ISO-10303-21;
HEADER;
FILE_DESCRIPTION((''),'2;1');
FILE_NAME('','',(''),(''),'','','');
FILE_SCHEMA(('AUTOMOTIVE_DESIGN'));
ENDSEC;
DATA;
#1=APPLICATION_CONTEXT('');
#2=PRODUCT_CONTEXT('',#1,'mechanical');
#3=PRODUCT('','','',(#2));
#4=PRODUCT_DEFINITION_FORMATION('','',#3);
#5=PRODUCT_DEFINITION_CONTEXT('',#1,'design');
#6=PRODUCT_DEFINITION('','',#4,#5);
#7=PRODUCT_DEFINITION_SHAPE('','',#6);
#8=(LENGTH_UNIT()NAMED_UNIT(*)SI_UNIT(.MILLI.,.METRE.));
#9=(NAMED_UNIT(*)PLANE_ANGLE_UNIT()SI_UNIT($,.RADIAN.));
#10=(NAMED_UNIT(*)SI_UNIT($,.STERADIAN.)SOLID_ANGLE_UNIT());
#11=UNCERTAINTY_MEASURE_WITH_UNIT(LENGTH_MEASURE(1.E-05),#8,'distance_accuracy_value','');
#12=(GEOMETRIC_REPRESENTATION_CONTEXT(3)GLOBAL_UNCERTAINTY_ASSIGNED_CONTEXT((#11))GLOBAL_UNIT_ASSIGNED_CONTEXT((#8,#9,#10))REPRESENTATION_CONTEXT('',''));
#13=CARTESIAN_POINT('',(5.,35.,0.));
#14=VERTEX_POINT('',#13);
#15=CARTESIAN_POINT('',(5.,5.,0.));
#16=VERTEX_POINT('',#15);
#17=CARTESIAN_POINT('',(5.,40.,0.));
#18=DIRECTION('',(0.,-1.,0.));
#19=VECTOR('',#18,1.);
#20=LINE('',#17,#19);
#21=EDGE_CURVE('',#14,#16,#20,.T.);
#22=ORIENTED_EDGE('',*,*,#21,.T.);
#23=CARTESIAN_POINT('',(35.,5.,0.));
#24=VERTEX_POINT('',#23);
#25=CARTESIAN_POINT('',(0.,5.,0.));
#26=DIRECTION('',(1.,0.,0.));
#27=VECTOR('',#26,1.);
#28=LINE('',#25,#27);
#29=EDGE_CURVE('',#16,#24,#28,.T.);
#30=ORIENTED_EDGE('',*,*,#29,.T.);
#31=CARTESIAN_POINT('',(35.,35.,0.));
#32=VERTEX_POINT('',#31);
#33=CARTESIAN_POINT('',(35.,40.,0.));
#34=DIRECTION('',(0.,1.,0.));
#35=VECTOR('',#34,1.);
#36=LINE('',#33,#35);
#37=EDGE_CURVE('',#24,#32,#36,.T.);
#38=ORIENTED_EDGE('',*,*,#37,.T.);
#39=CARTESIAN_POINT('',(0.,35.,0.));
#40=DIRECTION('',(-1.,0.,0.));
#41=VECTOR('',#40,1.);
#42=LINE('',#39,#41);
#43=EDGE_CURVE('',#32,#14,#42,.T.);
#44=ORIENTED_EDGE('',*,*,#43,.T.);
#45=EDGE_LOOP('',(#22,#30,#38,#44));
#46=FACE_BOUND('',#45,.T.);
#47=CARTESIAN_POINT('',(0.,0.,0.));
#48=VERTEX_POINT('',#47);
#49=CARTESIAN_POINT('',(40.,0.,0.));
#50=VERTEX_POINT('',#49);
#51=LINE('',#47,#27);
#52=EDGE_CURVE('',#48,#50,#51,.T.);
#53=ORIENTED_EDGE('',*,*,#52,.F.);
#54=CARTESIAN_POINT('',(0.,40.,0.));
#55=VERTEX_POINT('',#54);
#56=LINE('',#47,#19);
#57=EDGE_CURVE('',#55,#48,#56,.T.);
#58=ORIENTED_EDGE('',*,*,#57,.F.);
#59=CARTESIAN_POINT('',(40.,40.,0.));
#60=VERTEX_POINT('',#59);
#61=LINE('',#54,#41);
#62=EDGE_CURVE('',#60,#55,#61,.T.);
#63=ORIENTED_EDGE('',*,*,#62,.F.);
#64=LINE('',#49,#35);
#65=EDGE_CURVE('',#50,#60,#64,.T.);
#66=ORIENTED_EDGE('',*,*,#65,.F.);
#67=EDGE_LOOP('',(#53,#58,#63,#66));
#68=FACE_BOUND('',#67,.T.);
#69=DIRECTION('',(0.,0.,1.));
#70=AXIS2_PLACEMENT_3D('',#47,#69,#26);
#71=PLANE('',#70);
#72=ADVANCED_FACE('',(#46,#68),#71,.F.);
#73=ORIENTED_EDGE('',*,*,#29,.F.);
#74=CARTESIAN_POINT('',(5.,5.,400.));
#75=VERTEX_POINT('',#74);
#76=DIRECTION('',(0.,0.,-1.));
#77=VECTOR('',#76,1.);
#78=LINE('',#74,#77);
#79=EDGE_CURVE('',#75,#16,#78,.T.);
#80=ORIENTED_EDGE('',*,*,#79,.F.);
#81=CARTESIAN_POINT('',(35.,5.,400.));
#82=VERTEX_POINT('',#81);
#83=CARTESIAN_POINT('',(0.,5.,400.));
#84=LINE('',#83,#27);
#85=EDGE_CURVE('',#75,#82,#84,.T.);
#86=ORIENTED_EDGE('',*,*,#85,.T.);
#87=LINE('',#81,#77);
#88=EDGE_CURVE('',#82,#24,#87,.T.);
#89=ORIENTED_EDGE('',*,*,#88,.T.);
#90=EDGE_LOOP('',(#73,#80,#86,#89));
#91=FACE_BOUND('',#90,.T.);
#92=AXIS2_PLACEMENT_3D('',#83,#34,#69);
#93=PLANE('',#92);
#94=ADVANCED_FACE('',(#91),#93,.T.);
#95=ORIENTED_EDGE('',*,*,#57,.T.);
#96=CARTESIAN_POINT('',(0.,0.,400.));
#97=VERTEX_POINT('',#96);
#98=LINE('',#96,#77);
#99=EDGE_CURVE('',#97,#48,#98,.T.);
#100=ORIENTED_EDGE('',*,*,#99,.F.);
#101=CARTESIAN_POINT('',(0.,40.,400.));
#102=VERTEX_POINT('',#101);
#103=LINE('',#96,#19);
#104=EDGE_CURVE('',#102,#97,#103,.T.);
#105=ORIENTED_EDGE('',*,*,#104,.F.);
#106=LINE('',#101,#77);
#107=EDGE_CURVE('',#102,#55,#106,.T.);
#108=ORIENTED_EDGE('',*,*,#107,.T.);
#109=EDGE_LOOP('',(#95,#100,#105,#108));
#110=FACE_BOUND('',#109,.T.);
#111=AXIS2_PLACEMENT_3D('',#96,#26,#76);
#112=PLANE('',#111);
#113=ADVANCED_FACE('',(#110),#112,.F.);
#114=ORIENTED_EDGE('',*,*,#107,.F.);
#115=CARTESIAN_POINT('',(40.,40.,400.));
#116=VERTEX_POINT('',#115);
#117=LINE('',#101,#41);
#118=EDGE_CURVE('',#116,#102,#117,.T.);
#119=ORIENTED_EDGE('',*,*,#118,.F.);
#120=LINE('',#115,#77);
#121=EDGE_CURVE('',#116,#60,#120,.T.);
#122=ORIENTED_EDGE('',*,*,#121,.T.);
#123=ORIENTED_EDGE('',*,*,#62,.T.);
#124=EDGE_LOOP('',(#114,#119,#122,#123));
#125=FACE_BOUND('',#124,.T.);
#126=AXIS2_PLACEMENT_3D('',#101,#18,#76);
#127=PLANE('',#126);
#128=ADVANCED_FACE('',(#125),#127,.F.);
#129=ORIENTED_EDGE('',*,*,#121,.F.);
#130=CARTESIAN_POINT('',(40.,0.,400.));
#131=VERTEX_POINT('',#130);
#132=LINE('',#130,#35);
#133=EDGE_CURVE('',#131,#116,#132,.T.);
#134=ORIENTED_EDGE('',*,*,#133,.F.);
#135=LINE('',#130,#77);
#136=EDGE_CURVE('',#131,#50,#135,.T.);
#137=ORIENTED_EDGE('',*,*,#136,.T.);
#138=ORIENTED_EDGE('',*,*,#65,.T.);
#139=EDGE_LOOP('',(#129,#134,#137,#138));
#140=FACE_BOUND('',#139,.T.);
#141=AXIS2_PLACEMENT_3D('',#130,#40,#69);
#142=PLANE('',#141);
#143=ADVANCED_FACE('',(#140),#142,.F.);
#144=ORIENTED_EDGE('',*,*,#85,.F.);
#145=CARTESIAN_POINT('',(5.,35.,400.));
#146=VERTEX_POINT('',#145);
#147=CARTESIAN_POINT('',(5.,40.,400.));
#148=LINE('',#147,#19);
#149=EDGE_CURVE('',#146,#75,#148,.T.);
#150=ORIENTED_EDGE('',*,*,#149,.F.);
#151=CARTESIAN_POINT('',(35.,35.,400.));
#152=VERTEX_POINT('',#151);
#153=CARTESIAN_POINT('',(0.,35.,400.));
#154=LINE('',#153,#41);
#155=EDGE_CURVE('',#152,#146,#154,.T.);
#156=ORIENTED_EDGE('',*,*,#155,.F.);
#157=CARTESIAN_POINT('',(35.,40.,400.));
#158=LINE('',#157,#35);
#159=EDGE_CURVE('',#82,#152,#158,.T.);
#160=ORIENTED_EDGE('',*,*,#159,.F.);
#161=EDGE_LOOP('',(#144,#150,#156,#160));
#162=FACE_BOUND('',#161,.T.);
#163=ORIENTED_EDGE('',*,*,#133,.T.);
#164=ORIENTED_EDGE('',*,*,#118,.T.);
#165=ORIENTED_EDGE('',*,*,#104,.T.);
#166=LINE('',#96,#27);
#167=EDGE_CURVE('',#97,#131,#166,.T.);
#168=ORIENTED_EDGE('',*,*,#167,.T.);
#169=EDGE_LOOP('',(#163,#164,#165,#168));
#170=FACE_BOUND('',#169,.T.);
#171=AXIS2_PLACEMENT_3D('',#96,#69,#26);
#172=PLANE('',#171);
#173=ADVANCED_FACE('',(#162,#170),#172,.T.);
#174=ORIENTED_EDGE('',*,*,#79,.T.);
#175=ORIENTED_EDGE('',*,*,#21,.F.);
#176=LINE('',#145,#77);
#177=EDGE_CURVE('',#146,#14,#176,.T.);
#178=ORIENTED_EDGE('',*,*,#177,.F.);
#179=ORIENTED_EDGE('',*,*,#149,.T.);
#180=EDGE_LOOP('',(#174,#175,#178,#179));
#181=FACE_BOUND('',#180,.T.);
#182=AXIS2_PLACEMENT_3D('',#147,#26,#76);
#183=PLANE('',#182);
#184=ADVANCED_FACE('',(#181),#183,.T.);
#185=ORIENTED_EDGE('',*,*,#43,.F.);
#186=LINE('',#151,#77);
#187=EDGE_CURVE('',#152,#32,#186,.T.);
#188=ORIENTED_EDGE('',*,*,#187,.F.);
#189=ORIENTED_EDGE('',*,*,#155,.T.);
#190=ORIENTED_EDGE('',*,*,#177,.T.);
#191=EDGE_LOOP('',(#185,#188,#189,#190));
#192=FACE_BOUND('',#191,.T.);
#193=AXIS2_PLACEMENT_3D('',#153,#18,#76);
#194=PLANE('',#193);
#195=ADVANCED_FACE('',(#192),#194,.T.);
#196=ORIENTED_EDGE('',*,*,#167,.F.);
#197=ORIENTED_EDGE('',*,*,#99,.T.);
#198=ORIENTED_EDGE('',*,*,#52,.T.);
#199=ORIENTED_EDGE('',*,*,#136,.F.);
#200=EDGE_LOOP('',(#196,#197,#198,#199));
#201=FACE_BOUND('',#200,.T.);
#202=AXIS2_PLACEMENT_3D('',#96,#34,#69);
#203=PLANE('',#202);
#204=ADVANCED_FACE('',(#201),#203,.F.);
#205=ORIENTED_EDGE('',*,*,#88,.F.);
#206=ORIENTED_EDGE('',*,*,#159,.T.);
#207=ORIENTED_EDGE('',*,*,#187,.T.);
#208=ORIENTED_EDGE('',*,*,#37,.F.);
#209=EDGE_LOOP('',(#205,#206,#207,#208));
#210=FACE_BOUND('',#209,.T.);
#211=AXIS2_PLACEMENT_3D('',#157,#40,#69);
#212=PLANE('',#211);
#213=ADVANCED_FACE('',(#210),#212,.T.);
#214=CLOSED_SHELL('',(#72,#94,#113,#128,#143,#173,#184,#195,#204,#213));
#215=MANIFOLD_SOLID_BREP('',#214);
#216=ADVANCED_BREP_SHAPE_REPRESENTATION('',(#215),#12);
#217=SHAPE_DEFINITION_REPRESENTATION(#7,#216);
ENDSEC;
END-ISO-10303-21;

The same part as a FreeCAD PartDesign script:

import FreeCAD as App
import Part
import Sketcher
from FreeCAD import Vector


def add_polygon(sketch, points):
    """Adds a closed chain of lines whose ends are joined by coincident constraints."""
    first, n = sketch.GeometryCount, len(points)
    for a, b in zip(points, points[1:] + points[:1]):
        sketch.addGeometry(Part.LineSegment(App.Vector(*a, 0), App.Vector(*b, 0)), False)
    for i in range(n):
        sketch.addConstraint(Sketcher.Constraint("Coincident", first + i, 2, first + (i + 1) % n, 1))

doc = App.newDocument("Part")
body = doc.addObject("PartDesign::Body", "Body")

sketch1 = body.newObject("Sketcher::SketchObject", "Sketch")
sketch1.AttachmentSupport = (doc.getObject("XY_Plane"), [""])
sketch1.MapMode = "FlatFace"
add_polygon(sketch1, [(0, 40), (0, 0), (40, 0), (40, 40)])
add_polygon(sketch1, [(35, 5), (5, 5), (5, 35), (35, 35)])
sketch1.addConstraint([
    Sketcher.Constraint("Vertical", 0),
    Sketcher.Constraint("Horizontal", 1),
    Sketcher.Constraint("Vertical", 2),
    Sketcher.Constraint("Horizontal", 3),
    Sketcher.Constraint("Horizontal", 4),
    Sketcher.Constraint("Vertical", 5),
    Sketcher.Constraint("Horizontal", 6),
    Sketcher.Constraint("Vertical", 7),
    Sketcher.Constraint("Coincident", 0, 2, -1, 1),
    Sketcher.Constraint("Equal", 3, 0),
    Sketcher.Constraint("Equal", 6, 5),
    Sketcher.Constraint("DistanceX", 1, 1, 1, 2, 40.0),
    Sketcher.Constraint("DistanceX", 4, 2, 4, 1, 30.0),
    Sketcher.Constraint("DistanceX", -1, 1, 4, 2, 5.0),
    Sketcher.Constraint("DistanceY", -1, 1, 4, 2, 5.0),
])
pad1 = body.newObject("PartDesign::Pad", "Pad")
pad1.Profile = sketch1
pad1.Length = 400

doc.recompute()
